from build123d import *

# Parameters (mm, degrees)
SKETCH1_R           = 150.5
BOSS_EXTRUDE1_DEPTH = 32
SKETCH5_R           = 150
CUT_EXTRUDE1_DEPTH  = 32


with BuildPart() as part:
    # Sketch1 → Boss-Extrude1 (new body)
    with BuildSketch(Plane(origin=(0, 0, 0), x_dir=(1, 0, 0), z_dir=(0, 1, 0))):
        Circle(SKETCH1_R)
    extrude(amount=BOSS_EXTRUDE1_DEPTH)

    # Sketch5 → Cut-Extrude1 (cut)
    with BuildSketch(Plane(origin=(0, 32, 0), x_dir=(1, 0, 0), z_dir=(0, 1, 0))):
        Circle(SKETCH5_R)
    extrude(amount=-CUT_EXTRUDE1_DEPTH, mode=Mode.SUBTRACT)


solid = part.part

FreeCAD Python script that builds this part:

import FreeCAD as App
import Part
import Sketcher
Q = App.Units.Quantity

doc = App.newDocument("Part")
body = doc.addObject("PartDesign::Body", "Body")

# Sketch on XZ plane
sketch1 = body.newObject("Sketcher::SketchObject", "Sketch")
sketch1.AttachmentSupport = (doc.getObject("XZ_Plane"), [""])
sketch1.MapMode = "FlatFace"
sketch1.addGeometry(Part.Circle(App.Vector(0, 0, 0), App.Vector(0, 0, 1), 150), False)
sketch1.addConstraint([
    Sketcher.Constraint("Coincident", 0, 3, -1, 1),
    Sketcher.Constraint("Diameter", 0, Q("301 mm")),
])
pad1 = body.newObject("PartDesign::Pad", "Pad")
pad1.Profile = sketch1
pad1.Length = 32
pad1.Reversed = True

# Sketch on XZ plane
sketch2 = body.newObject("Sketcher::SketchObject", "Sketch001")
sketch2.AttachmentSupport = (doc.getObject("XZ_Plane"), [""])
sketch2.MapMode = "FlatFace"
sketch2.AttachmentOffset = App.Placement(App.Vector(0, 0, -32), App.Rotation())
sketch2.addGeometry(Part.Circle(App.Vector(0, 0, 0), App.Vector(0, 0, 1), 150), False)
sketch2.addConstraint([
    Sketcher.Constraint("Coincident", 0, 3, -1, 1),
    Sketcher.Constraint("Diameter", 0, Q("300 mm")),
])
pocket1 = body.newObject("PartDesign::Pocket", "Pocket")
pocket1.Profile = sketch2
pocket1.Length = 32
pocket1.Reversed = True

doc.recompute()
